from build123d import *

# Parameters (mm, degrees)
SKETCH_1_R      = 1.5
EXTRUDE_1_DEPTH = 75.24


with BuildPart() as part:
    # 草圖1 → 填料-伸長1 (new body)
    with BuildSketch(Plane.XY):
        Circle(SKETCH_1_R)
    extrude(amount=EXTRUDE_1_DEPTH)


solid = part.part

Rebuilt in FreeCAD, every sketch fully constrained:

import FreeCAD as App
import Part
import Sketcher

V = App.Vector

doc = App.newDocument("Part")
params = doc.addObject("Spreadsheet::Sheet", "Params")
for row, (alias, value) in enumerate([
    ("sketch1_diameter", "3 mm"),
    ("pad1_length", "75.24 mm"),
], start=1):
    params.set(f"A{row}", alias)
    params.set(f"B{row}", "=" + value)
    params.setAlias(f"B{row}", alias)

body = doc.addObject("PartDesign::Body", "Body")

# Sketch on XY plane
sketch1 = body.newObject("Sketcher::SketchObject", "Sketch")
sketch1.AttachmentSupport = (doc.getObject("XY_Plane"), [""])
sketch1.MapMode = "FlatFace"
sketch1.addGeometry(Part.Circle(V(0, 0, 0), V(0, 0, 1), 1.5), False)
sketch1.addConstraint(Sketcher.Constraint("Coincident", 0, 3, -1, 1))
sketch1.addConstraint(Sketcher.Constraint("Diameter", 0, 3.0))
sketch1.setExpression("Constraints[1]", "Params.sketch1_diameter")
pad1 = body.newObject("PartDesign::Pad", "Pad")
pad1.Profile = sketch1
pad1.setExpression("Length", "Params.pad1_length")

doc.recompute()
